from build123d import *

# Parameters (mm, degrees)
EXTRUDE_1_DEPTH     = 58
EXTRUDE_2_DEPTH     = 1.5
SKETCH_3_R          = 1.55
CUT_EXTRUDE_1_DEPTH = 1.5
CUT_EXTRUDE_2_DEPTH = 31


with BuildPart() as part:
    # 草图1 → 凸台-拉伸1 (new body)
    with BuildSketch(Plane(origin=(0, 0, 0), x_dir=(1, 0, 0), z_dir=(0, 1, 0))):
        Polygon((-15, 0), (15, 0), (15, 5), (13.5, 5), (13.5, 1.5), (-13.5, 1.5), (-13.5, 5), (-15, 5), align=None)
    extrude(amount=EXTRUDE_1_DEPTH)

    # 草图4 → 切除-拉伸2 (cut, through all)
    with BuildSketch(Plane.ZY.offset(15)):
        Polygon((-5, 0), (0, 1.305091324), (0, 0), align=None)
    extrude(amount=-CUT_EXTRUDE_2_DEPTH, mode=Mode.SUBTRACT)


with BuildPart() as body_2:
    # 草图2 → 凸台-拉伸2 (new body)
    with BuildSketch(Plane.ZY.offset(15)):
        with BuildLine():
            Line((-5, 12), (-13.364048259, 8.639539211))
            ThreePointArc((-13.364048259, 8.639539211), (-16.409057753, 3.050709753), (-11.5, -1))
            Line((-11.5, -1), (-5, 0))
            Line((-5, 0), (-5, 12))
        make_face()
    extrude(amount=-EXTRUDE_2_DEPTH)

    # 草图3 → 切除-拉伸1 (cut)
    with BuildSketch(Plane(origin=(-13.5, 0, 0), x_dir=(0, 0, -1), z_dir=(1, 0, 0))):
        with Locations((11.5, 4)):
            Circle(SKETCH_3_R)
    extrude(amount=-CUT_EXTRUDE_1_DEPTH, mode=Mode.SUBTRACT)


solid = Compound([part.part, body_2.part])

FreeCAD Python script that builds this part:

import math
import FreeCAD as App
import Part
import Sketcher

V = App.Vector
Q = App.Units.Quantity


def add_polygon(sketch, points):
    """Adds a closed chain of lines whose ends are joined by coincident constraints."""
    first, n = sketch.GeometryCount, len(points)
    for a, b in zip(points, points[1:] + points[:1]):
        sketch.addGeometry(Part.LineSegment(App.Vector(*a, 0), App.Vector(*b, 0)), False)
    for i in range(n):
        sketch.addConstraint(Sketcher.Constraint("Coincident", first + i, 2, first + (i + 1) % n, 1))

doc = App.newDocument("Part")
body = doc.addObject("PartDesign::Body", "Body")

# Sketch on XZ plane
sketch1 = body.newObject("Sketcher::SketchObject", "Sketch")
sketch1.AttachmentSupport = (doc.getObject("XZ_Plane"), [""])
sketch1.MapMode = "FlatFace"
add_polygon(sketch1, [(-15, 0), (15, 0), (15, -5), (13.5, -5), (13.5, -1.5), (-13.5, -1.5), (-13.5, -5), (-15, -5)])  # lines 0-7
sketch1.addConstraint([
    Sketcher.Constraint("Horizontal", 0),
    Sketcher.Constraint("Vertical", 1),
    Sketcher.Constraint("Horizontal", 2),
    Sketcher.Constraint("Vertical", 3),
    Sketcher.Constraint("Horizontal", 4),
    Sketcher.Constraint("Vertical", 5),
    Sketcher.Constraint("Horizontal", 6),
    Sketcher.Constraint("Vertical", 7),
    Sketcher.Constraint("Symmetric", 0, 2, 7, 2, -1, 1),
    Sketcher.Constraint("Symmetric", 2, 2, 5, 2, -2),
    Sketcher.Constraint("DistanceX", 0, 1, 0, 2, Q("30 mm")),
    Sketcher.Constraint("DistanceX", 4, 2, 4, 1, Q("27 mm")),
    Sketcher.Constraint("DistanceY", 1, 2, 1, 1, Q("5 mm")),
    Sketcher.Constraint("DistanceY", 3, 1, 3, 2, Q("3.5 mm")),
])
pad1 = body.newObject("PartDesign::Pad", "Pad")
pad1.Profile = sketch1
pad1.Length = 58
pad1.Reversed = True

# Sketch on YZ plane
sketch2 = body.newObject("Sketcher::SketchObject", "Sketch001")
sketch2.AttachmentSupport = (doc.getObject("YZ_Plane"), [""])
sketch2.MapMode = "FlatFace"
sketch2.AttachmentOffset = App.Placement(V(0, 0, -15), App.Rotation())
add_polygon(sketch2, [(1.305091, 0), (0, -5), (0, 0)])  # lines 0-2
sketch2.addConstraint([
    Sketcher.Constraint("Vertical", 1),
    Sketcher.Constraint("Horizontal", 2),
    Sketcher.Constraint("Coincident", 1, 2, -1, 1),
    Sketcher.Constraint("DistanceY", 1, 1, 1, 2, Q("5 mm")),
    Sketcher.Constraint("DistanceX", 2, 1, 2, 2, Q("1.305091 mm")),
])
pocket1 = body.newObject("PartDesign::Pocket", "Pocket")
pocket1.Profile = sketch2
pocket1.Type = "ThroughAll"
pocket1.Reversed = True
body2 = doc.addObject("PartDesign::Body", "Body001")

# Sketch on YZ plane
sketch3 = body2.newObject("Sketcher::SketchObject", "Sketch002")
sketch3.AttachmentSupport = (doc.getObject("YZ_Plane001"), [""])
sketch3.MapMode = "FlatFace"
sketch3.AttachmentOffset = App.Placement(V(0, 0, -15), App.Rotation())
sketch3.addGeometry([
    Part.LineSegment(V(12, -5, 0), V(8.639539, -13.364048, 0)),
    Part.ArcOfCircle(Part.Circle(V(4, -11.5, 0), V(0, 0, 1), 5), math.radians(-180), math.radians(-21.889)),
    Part.LineSegment(V(-1, -11.5, 0), V(0, -5, 0)),
    Part.LineSegment(V(0, -5, 0), V(12, -5, 0)),
], False)
sketch3.addConstraint([
    Sketcher.Constraint("Tangent", 0, 2, 1, 2),
    Sketcher.Constraint("Coincident", 1, 1, 2, 1),
    Sketcher.Constraint("Coincident", 2, 2, 3, 1),
    Sketcher.Constraint("Coincident", 3, 2, 0, 1),
    Sketcher.Constraint("Horizontal", 3),
    Sketcher.Constraint("PointOnObject", 2, 2, -2),
    Sketcher.Constraint("Radius", 1, Q("5 mm")),
    Sketcher.Constraint("DistanceX", 3, 1, 3, 2, Q("12 mm")),
    Sketcher.Constraint("DistanceX", -1, 1, 1, 3, Q("4 mm")),
    Sketcher.Constraint("DistanceY", 2, 2, -1, 1, Q("5 mm")),
    Sketcher.Constraint("DistanceY", 1, 3, -1, 1, Q("11.5 mm")),
    Sketcher.Constraint("DistanceY", 1, 1, -1, 1, Q("11.5 mm")),
])
pad2 = body2.newObject("PartDesign::Pad", "Pad001")
pad2.Profile = sketch3
pad2.Length = 1.5

# Sketch on YZ plane
sketch4 = body2.newObject("Sketcher::SketchObject", "Sketch003")
sketch4.AttachmentSupport = (doc.getObject("YZ_Plane001"), [""])
sketch4.MapMode = "FlatFace"
sketch4.AttachmentOffset = App.Placement(V(0, 0, -13.5), App.Rotation())
sketch4.addGeometry(Part.Circle(V(4, -11.5, 0), V(0, 0, 1), 1.55), False)
sketch4.addConstraint([
    Sketcher.Constraint("Diameter", 0, Q("3.1 mm")),
    Sketcher.Constraint("DistanceX", -1, 1, 0, 3, Q("4 mm")),
    Sketcher.Constraint("DistanceY", 0, 3, -1, 1, Q("11.5 mm")),
])
pocket2 = body2.newObject("PartDesign::Pocket", "Pocket001")
pocket2.Profile = sketch4
pocket2.Length = 1.5

doc.recompute()
